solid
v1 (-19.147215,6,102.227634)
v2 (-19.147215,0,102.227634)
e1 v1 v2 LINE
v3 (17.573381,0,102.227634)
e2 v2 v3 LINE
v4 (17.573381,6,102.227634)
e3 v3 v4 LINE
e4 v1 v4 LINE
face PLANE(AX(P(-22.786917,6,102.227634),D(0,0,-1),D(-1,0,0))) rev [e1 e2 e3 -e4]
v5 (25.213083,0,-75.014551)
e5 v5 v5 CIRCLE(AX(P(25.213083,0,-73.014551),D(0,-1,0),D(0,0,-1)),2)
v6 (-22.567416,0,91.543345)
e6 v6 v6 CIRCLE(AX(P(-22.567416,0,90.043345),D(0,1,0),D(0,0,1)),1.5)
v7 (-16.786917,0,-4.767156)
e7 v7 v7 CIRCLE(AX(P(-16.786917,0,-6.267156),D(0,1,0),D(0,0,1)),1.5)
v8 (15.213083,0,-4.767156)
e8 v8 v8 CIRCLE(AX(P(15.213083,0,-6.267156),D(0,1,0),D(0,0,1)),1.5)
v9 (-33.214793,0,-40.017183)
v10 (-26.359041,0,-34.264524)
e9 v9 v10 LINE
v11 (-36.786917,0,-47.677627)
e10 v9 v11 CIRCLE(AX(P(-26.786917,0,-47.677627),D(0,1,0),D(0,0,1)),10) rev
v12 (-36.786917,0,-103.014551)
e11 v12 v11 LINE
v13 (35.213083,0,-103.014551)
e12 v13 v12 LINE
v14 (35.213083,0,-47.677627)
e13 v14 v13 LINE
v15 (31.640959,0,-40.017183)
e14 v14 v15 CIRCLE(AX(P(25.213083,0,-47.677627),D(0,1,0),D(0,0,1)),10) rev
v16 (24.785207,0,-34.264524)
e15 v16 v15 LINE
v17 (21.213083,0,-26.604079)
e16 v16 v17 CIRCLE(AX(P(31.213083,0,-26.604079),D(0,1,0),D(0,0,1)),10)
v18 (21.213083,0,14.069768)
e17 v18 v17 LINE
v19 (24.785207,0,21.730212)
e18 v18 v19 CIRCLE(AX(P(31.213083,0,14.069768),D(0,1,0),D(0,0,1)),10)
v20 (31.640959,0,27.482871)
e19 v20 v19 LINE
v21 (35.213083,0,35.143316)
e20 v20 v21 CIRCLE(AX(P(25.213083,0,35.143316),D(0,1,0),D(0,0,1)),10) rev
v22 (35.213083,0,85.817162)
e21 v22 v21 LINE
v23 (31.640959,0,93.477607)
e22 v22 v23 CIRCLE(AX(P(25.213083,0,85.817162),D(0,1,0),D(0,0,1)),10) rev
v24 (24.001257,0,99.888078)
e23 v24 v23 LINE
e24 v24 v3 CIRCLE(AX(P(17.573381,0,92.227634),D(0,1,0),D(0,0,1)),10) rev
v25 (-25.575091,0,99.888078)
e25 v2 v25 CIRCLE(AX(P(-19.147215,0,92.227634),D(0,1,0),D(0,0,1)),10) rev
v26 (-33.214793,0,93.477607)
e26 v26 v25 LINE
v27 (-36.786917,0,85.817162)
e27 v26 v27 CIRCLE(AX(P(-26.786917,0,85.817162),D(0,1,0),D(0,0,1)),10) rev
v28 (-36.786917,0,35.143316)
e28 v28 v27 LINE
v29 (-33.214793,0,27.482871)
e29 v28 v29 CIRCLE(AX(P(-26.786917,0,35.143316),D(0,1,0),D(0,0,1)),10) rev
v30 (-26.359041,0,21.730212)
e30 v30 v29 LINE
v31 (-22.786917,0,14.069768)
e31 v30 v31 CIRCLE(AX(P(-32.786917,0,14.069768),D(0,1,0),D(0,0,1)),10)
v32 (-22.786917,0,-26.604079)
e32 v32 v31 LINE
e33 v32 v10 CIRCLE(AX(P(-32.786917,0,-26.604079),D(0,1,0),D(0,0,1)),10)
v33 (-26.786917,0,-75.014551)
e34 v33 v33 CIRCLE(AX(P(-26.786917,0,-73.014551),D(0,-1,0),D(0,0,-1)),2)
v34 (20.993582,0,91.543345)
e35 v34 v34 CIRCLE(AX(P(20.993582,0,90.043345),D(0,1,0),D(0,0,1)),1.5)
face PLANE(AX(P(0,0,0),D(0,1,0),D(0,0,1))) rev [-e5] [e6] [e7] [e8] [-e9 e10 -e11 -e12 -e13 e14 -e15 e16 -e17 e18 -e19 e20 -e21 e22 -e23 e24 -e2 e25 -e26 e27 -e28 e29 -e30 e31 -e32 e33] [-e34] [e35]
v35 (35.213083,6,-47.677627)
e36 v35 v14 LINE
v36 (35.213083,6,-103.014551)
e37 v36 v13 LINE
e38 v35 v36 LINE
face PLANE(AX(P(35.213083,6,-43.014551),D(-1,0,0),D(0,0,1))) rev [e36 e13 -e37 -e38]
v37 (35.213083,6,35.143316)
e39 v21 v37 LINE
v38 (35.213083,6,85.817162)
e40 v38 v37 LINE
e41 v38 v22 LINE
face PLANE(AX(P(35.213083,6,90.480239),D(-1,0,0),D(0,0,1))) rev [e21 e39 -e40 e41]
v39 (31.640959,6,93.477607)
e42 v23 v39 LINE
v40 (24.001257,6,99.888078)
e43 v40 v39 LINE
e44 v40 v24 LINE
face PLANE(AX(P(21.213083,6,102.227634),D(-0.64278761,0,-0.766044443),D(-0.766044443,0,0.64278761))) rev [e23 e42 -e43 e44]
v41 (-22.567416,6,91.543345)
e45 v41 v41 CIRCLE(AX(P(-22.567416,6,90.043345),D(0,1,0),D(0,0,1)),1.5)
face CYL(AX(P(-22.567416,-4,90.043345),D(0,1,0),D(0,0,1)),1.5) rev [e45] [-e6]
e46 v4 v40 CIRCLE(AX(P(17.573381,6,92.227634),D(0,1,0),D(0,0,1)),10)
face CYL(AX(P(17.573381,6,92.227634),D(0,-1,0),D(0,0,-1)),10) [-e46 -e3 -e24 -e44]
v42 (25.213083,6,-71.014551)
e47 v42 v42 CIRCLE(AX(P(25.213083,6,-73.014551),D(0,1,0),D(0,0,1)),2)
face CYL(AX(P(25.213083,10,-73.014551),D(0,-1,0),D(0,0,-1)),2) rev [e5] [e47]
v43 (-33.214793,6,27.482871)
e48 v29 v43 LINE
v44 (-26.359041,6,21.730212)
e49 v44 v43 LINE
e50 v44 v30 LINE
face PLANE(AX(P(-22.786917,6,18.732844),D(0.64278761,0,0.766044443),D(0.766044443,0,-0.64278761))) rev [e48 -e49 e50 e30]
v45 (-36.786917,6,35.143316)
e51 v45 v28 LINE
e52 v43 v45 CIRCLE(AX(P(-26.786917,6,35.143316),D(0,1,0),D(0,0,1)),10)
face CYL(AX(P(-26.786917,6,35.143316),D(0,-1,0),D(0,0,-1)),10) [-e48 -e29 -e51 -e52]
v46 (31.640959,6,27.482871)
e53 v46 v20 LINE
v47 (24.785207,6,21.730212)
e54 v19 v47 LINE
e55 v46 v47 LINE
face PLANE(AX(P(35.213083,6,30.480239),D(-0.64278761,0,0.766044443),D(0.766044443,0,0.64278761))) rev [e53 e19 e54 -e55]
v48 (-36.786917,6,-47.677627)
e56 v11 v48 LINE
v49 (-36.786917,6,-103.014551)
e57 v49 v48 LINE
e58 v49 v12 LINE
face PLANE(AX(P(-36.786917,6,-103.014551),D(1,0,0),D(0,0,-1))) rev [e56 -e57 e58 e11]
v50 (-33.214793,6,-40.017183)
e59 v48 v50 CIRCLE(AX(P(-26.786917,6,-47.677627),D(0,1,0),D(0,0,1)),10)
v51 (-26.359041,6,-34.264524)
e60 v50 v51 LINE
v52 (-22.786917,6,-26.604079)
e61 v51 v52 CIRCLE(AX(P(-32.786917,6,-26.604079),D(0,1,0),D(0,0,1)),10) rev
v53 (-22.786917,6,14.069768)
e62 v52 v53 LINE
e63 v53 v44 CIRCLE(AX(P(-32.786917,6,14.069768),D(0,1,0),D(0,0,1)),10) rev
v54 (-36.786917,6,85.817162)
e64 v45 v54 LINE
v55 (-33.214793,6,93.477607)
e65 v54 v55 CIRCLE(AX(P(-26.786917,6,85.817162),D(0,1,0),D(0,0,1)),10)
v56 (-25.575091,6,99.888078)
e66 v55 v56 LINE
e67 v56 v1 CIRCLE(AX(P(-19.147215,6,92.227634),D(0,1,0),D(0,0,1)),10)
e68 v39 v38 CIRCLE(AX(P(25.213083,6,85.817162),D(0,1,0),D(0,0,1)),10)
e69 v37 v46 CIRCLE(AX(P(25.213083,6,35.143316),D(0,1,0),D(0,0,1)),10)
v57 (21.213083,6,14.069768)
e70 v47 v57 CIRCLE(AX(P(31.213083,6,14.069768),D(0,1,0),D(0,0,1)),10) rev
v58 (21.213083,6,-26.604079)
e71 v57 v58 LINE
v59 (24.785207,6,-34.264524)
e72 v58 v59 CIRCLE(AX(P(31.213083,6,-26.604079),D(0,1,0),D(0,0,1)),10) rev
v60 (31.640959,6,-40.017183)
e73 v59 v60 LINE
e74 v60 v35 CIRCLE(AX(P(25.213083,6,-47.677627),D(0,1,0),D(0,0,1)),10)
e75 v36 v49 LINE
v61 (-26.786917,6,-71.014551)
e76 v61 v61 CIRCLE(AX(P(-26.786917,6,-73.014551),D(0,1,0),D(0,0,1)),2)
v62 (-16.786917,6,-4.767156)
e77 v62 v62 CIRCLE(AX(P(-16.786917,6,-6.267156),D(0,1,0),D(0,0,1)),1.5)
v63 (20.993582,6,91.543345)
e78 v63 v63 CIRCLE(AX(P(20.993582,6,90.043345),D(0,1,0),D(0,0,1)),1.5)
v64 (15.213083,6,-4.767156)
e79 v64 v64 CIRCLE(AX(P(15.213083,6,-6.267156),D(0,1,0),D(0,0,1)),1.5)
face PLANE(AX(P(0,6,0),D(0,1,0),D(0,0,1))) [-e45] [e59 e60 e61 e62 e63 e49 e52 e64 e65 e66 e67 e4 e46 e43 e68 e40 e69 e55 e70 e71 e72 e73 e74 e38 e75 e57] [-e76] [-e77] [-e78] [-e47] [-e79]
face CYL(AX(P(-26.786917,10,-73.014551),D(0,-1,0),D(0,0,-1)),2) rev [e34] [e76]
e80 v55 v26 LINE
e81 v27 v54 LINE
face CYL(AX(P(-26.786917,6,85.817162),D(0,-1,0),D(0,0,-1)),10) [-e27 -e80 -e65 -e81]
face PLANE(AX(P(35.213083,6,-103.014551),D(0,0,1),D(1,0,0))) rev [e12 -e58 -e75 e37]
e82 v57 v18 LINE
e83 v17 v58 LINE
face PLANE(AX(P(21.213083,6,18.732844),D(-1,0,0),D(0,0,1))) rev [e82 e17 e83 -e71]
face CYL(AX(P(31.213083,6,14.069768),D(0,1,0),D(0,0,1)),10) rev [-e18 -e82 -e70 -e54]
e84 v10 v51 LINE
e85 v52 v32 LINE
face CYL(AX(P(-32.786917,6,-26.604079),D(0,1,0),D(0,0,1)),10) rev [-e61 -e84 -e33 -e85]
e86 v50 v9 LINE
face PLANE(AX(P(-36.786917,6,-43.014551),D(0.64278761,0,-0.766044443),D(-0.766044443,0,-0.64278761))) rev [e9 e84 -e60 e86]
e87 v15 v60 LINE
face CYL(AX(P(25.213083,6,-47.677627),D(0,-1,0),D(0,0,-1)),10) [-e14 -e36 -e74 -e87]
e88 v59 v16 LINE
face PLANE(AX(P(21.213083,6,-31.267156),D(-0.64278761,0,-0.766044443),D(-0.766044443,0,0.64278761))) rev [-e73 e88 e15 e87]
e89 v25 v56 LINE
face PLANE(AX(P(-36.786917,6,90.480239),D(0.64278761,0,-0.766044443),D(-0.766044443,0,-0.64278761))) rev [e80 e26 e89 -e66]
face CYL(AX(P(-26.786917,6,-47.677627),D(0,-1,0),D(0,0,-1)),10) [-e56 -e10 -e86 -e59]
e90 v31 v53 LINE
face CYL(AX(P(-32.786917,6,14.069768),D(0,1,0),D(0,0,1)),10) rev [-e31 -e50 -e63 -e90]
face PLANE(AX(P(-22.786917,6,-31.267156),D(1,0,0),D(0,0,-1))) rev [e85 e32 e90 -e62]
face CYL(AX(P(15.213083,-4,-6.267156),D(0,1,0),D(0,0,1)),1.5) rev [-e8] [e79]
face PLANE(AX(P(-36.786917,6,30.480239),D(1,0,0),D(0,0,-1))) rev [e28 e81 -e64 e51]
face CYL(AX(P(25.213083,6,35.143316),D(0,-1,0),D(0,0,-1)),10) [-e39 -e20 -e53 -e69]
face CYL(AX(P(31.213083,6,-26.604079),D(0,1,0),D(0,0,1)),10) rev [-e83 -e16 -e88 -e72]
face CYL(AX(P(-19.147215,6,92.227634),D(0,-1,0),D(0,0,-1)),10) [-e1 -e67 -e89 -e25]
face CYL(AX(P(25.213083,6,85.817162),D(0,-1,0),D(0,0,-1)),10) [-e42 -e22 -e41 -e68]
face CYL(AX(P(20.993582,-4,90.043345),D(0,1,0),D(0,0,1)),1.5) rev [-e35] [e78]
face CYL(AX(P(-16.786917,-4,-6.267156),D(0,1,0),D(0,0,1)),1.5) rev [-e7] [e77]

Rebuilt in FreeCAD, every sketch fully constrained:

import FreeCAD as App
import Part
import Sketcher
Q = App.Units.Quantity


def edges_at(feature, points):
    """Names of the edges that pass closest to the given points."""
    edges = feature.Shape.Edges
    near = lambda p: min(range(len(edges)), key=lambda i: edges[i].distToShape(Part.Vertex(*p))[0])
    return sorted({f"Edge{near(p) + 1}" for p in points})

doc = App.newDocument("Part")
body = doc.addObject("PartDesign::Body", "Body")

# Sketch on XZ plane
sketch1 = body.newObject("Sketcher::SketchObject", "Sketch")
sketch1.AttachmentSupport = (doc.getObject("XZ_Plane"), [""])
sketch1.MapMode = "FlatFace"
sketch1.addGeometry([
    Part.LineSegment(App.Vector(21, 102, 0), App.Vector(35, 90, 0)),  # 0
    Part.LineSegment(App.Vector(35, 90, 0), App.Vector(35, 30, 0)),  # 1
    Part.LineSegment(App.Vector(35, 30, 0), App.Vector(21, 19, 0)),  # 2
    Part.LineSegment(App.Vector(21, 19, 0), App.Vector(21, -31, 0)),  # 3
    Part.LineSegment(App.Vector(21, -31, 0), App.Vector(35, -43, 0)),  # 4
    Part.LineSegment(App.Vector(35, -43, 0), App.Vector(35, -103, 0)),  # 5
    Part.LineSegment(App.Vector(35, -103, 0), App.Vector(-37, -103, 0)),  # 6
    Part.LineSegment(App.Vector(-37, -103, 0), App.Vector(-37, -43, 0)),  # 7
    Part.LineSegment(App.Vector(-37, -43, 0), App.Vector(-23, -31, 0)),  # 8
    Part.LineSegment(App.Vector(-23, -31, 0), App.Vector(-23, 19, 0)),  # 9
    Part.LineSegment(App.Vector(-23, 19, 0), App.Vector(-37, 30, 0)),  # 10
    Part.LineSegment(App.Vector(-37, 30, 0), App.Vector(-37, 90, 0)),  # 11
    Part.LineSegment(App.Vector(-37, 90, 0), App.Vector(-23, 102, 0)),  # 12
    Part.LineSegment(App.Vector(-23, 102, 0), App.Vector(21, 102, 0)),  # 13
], False)
sketch1.addConstraint([
    Sketcher.Constraint("Coincident", 0, 2, 1, 1),
    Sketcher.Constraint("Coincident", 1, 2, 2, 1),
    Sketcher.Constraint("Coincident", 2, 2, 3, 1),
    Sketcher.Constraint("Coincident", 3, 2, 4, 1),
    Sketcher.Constraint("Coincident", 4, 2, 5, 1),
    Sketcher.Constraint("Coincident", 5, 2, 6, 1),
    Sketcher.Constraint("Coincident", 6, 2, 7, 1),
    Sketcher.Constraint("Coincident", 7, 2, 8, 1),
    Sketcher.Constraint("Coincident", 8, 2, 9, 1),
    Sketcher.Constraint("Coincident", 9, 2, 10, 1),
    Sketcher.Constraint("Coincident", 10, 2, 11, 1),
    Sketcher.Constraint("Coincident", 11, 2, 12, 1),
    Sketcher.Constraint("Coincident", 12, 2, 13, 1),
    Sketcher.Constraint("Coincident", 13, 2, 0, 1),
    Sketcher.Constraint("Vertical", 1),
    Sketcher.Constraint("Vertical", 3),
    Sketcher.Constraint("Vertical", 5),
    Sketcher.Constraint("Horizontal", 6),
    Sketcher.Constraint("Vertical", 7),
    Sketcher.Constraint("Vertical", 9),
    Sketcher.Constraint("Vertical", 11),
    Sketcher.Constraint("Horizontal", 13),
    Sketcher.Constraint("Parallel", 0, 4),
    Sketcher.Constraint("Parallel", 2, 8),
    Sketcher.Constraint("Parallel", 4, 10),
    Sketcher.Constraint("Parallel", 8, 12),
    Sketcher.Constraint("Horizontal", 4, 2, 7, 2),
    Sketcher.Constraint("Horizontal", 3, 2, 8, 2),
    Sketcher.Constraint("Horizontal", 2, 2, 9, 2),
    Sketcher.Constraint("Horizontal", 1, 2, 10, 2),
    Sketcher.Constraint("Horizontal", 0, 2, 11, 2),
    Sketcher.Constraint("Vertical", 1, 2, 4, 2),
    Sketcher.Constraint("Vertical", 7, 2, 10, 2),
    Sketcher.Constraint("Vertical", 9, 2, 12, 2),
    Sketcher.Constraint("Equal", 1, 5),
    Sketcher.Constraint("DistanceX", 6, 2, 6, 1, 72.0),
    Sketcher.Constraint("DistanceX", 13, 1, 13, 2, 44.0),
    Sketcher.Constraint("DistanceY", 1, 2, 1, 1, 60.0),
    Sketcher.Constraint("DistanceY", 3, 2, 3, 1, 50.0),
    Sketcher.Constraint("Angle", 0, Q("-40 deg")),
    Sketcher.Constraint("DistanceY", -1, 1, 0, 2, 90.480239),
    Sketcher.Constraint("DistanceX", -1, 1, 0, 2, 35.213083),
])
pad1 = body.newObject("PartDesign::Pad", "Pad")
pad1.Profile = sketch1
pad1.Length = 6
pad1.Reversed = True
doc.recompute()

fillet = body.newObject("PartDesign::Fillet", "Fillet")
fillet.Base = (pad1, edges_at(pad1, [
    (-22.787, 3, 102.228),
    (-36.787, 3, 90.48),
    (-36.787, 3, 30.48),
    (-22.787, 3, 18.733),
    (21.213, 3, 18.733),
    (35.213, 3, 30.48),
    (35.213, 3, 90.48),
    (21.213, 3, 102.228),
]))
fillet.Radius = 10

# Sketch on XZ plane
sketch2 = body.newObject("Sketcher::SketchObject", "Sketch001")
sketch2.AttachmentSupport = (doc.getObject("XZ_Plane"), [""])
sketch2.MapMode = "FlatFace"
sketch2.addGeometry(Part.Circle(App.Vector(-0.8, 60.5, 0), App.Vector(0, 0, 1), 2.5), False)
sketch2.addConstraint([
    Sketcher.Constraint("Diameter", 0, 5.0),
    Sketcher.Constraint("DistanceY", -1, 1, 0, 3, 60.480239),
    Sketcher.Constraint("DistanceX", 0, 3, -1, 1, 0.786917),
])
pocket1 = body.newObject("PartDesign::Pocket", "Pocket")
pocket1.Profile = sketch2
pocket1.Length = 6

# Sketch on XZ plane
sketch3 = body.newObject("Sketcher::SketchObject", "Sketch002")
sketch3.AttachmentSupport = (doc.getObject("XZ_Plane"), [""])
sketch3.MapMode = "FlatFace"
sketch3.addGeometry(Part.Circle(App.Vector(-1, 60, 0), App.Vector(0, 0, 1), 6), False)
sketch3.addConstraint([
    Sketcher.Constraint("Diameter", 0, 11.995187),
    Sketcher.Constraint("DistanceY", -1, 1, 0, 3, 60.480239),
    Sketcher.Constraint("DistanceX", 0, 3, -1, 1, 0.786917),
])
pad2 = body.newObject("PartDesign::Pad", "Pad001")
pad2.Profile = sketch3
pad2.Length = 6
pad2.Reversed = True
doc.recompute()

fillet2 = body.newObject("PartDesign::Fillet", "Fillet001")
fillet2.Base = (pad2, edges_at(pad2, [
    (-22.787, 3, -31.267),
    (-36.787, 3, -43.015),
    (35.213, 3, -43.015),
    (21.213, 3, -31.267),
]))
fillet2.Radius = 10

# Sketch on XZ plane
sketch4 = body.newObject("Sketcher::SketchObject", "Sketch003")
sketch4.AttachmentSupport = (doc.getObject("XZ_Plane"), [""])
sketch4.MapMode = "FlatFace"
sketch4.AttachmentOffset = App.Placement(App.Vector(0, 0, -6), App.Rotation())
sketch4.addGeometry([
    Part.Circle(App.Vector(15.2, -6.3, 0), App.Vector(0, 0, 1), 1.5),
    Part.Circle(App.Vector(-16.8, -6.3, 0), App.Vector(0, 0, 1), 1.5),
], False)
sketch4.addConstraint([
    Sketcher.Constraint("Equal", 0, 1),
    Sketcher.Constraint("Horizontal", 0, 3, 1, 3),
    Sketcher.Constraint("Diameter", 0, 3.0),
    Sketcher.Constraint("DistanceX", 1, 3, 0, 3, 32.0),
    Sketcher.Constraint("DistanceX", -1, 1, 0, 3, 15.213083),
    Sketcher.Constraint("DistanceY", 0, 3, -1, 1, 6.267156),
])
pocket2 = body.newObject("PartDesign::Pocket", "Pocket001")
pocket2.Profile = sketch4
pocket2.Length = 10
pocket2.Reversed = True

# Sketch on XZ plane
sketch5 = body.newObject("Sketcher::SketchObject", "Sketch004")
sketch5.AttachmentSupport = (doc.getObject("XZ_Plane"), [""])
sketch5.MapMode = "FlatFace"
sketch5.AttachmentOffset = App.Placement(App.Vector(0, 0, -6), App.Rotation())
sketch5.addGeometry([
    Part.Circle(App.Vector(21, 90, 0), App.Vector(0, 0, 1), 1.5),
    Part.Circle(App.Vector(-22.6, 90, 0), App.Vector(0, 0, 1), 1.5),
], False)
sketch5.addConstraint([
    Sketcher.Constraint("Equal", 0, 1),
    Sketcher.Constraint("Horizontal", 0, 3, 1, 3),
    Sketcher.Constraint("Diameter", 0, 3.0),
    Sketcher.Constraint("DistanceX", 1, 3, 0, 3, 43.560998),
    Sketcher.Constraint("DistanceX", -1, 1, 0, 3, 20.993582),
    Sketcher.Constraint("DistanceY", -1, 1, 0, 3, 90.043345),
])
pocket3 = body.newObject("PartDesign::Pocket", "Pocket002")
pocket3.Profile = sketch5
pocket3.Length = 10
pocket3.Reversed = True

# Sketch on XZ plane
sketch6 = body.newObject("Sketcher::SketchObject", "Sketch005")
sketch6.AttachmentSupport = (doc.getObject("XZ_Plane"), [""])
sketch6.MapMode = "FlatFace"
sketch6.addGeometry([
    Part.Circle(App.Vector(-26.8, -73, 0), App.Vector(0, 0, 1), 2),
    Part.Circle(App.Vector(25.2, -73, 0), App.Vector(0, 0, 1), 2),
], False)
sketch6.addConstraint([
    Sketcher.Constraint("Equal", 0, 1),
    Sketcher.Constraint("Horizontal", 0, 3, 1, 3),
    Sketcher.Constraint("Diameter", 0, 4.0),
    Sketcher.Constraint("DistanceX", 0, 3, 1, 3, 52.0),
    Sketcher.Constraint("DistanceY", 0, 3, -1, 1, 73.014551),
    Sketcher.Constraint("DistanceX", 0, 3, -1, 1, 26.786917),
])
pocket4 = body.newObject("PartDesign::Pocket", "Pocket003")
pocket4.Profile = sketch6
pocket4.Length = 10

doc.recompute()
